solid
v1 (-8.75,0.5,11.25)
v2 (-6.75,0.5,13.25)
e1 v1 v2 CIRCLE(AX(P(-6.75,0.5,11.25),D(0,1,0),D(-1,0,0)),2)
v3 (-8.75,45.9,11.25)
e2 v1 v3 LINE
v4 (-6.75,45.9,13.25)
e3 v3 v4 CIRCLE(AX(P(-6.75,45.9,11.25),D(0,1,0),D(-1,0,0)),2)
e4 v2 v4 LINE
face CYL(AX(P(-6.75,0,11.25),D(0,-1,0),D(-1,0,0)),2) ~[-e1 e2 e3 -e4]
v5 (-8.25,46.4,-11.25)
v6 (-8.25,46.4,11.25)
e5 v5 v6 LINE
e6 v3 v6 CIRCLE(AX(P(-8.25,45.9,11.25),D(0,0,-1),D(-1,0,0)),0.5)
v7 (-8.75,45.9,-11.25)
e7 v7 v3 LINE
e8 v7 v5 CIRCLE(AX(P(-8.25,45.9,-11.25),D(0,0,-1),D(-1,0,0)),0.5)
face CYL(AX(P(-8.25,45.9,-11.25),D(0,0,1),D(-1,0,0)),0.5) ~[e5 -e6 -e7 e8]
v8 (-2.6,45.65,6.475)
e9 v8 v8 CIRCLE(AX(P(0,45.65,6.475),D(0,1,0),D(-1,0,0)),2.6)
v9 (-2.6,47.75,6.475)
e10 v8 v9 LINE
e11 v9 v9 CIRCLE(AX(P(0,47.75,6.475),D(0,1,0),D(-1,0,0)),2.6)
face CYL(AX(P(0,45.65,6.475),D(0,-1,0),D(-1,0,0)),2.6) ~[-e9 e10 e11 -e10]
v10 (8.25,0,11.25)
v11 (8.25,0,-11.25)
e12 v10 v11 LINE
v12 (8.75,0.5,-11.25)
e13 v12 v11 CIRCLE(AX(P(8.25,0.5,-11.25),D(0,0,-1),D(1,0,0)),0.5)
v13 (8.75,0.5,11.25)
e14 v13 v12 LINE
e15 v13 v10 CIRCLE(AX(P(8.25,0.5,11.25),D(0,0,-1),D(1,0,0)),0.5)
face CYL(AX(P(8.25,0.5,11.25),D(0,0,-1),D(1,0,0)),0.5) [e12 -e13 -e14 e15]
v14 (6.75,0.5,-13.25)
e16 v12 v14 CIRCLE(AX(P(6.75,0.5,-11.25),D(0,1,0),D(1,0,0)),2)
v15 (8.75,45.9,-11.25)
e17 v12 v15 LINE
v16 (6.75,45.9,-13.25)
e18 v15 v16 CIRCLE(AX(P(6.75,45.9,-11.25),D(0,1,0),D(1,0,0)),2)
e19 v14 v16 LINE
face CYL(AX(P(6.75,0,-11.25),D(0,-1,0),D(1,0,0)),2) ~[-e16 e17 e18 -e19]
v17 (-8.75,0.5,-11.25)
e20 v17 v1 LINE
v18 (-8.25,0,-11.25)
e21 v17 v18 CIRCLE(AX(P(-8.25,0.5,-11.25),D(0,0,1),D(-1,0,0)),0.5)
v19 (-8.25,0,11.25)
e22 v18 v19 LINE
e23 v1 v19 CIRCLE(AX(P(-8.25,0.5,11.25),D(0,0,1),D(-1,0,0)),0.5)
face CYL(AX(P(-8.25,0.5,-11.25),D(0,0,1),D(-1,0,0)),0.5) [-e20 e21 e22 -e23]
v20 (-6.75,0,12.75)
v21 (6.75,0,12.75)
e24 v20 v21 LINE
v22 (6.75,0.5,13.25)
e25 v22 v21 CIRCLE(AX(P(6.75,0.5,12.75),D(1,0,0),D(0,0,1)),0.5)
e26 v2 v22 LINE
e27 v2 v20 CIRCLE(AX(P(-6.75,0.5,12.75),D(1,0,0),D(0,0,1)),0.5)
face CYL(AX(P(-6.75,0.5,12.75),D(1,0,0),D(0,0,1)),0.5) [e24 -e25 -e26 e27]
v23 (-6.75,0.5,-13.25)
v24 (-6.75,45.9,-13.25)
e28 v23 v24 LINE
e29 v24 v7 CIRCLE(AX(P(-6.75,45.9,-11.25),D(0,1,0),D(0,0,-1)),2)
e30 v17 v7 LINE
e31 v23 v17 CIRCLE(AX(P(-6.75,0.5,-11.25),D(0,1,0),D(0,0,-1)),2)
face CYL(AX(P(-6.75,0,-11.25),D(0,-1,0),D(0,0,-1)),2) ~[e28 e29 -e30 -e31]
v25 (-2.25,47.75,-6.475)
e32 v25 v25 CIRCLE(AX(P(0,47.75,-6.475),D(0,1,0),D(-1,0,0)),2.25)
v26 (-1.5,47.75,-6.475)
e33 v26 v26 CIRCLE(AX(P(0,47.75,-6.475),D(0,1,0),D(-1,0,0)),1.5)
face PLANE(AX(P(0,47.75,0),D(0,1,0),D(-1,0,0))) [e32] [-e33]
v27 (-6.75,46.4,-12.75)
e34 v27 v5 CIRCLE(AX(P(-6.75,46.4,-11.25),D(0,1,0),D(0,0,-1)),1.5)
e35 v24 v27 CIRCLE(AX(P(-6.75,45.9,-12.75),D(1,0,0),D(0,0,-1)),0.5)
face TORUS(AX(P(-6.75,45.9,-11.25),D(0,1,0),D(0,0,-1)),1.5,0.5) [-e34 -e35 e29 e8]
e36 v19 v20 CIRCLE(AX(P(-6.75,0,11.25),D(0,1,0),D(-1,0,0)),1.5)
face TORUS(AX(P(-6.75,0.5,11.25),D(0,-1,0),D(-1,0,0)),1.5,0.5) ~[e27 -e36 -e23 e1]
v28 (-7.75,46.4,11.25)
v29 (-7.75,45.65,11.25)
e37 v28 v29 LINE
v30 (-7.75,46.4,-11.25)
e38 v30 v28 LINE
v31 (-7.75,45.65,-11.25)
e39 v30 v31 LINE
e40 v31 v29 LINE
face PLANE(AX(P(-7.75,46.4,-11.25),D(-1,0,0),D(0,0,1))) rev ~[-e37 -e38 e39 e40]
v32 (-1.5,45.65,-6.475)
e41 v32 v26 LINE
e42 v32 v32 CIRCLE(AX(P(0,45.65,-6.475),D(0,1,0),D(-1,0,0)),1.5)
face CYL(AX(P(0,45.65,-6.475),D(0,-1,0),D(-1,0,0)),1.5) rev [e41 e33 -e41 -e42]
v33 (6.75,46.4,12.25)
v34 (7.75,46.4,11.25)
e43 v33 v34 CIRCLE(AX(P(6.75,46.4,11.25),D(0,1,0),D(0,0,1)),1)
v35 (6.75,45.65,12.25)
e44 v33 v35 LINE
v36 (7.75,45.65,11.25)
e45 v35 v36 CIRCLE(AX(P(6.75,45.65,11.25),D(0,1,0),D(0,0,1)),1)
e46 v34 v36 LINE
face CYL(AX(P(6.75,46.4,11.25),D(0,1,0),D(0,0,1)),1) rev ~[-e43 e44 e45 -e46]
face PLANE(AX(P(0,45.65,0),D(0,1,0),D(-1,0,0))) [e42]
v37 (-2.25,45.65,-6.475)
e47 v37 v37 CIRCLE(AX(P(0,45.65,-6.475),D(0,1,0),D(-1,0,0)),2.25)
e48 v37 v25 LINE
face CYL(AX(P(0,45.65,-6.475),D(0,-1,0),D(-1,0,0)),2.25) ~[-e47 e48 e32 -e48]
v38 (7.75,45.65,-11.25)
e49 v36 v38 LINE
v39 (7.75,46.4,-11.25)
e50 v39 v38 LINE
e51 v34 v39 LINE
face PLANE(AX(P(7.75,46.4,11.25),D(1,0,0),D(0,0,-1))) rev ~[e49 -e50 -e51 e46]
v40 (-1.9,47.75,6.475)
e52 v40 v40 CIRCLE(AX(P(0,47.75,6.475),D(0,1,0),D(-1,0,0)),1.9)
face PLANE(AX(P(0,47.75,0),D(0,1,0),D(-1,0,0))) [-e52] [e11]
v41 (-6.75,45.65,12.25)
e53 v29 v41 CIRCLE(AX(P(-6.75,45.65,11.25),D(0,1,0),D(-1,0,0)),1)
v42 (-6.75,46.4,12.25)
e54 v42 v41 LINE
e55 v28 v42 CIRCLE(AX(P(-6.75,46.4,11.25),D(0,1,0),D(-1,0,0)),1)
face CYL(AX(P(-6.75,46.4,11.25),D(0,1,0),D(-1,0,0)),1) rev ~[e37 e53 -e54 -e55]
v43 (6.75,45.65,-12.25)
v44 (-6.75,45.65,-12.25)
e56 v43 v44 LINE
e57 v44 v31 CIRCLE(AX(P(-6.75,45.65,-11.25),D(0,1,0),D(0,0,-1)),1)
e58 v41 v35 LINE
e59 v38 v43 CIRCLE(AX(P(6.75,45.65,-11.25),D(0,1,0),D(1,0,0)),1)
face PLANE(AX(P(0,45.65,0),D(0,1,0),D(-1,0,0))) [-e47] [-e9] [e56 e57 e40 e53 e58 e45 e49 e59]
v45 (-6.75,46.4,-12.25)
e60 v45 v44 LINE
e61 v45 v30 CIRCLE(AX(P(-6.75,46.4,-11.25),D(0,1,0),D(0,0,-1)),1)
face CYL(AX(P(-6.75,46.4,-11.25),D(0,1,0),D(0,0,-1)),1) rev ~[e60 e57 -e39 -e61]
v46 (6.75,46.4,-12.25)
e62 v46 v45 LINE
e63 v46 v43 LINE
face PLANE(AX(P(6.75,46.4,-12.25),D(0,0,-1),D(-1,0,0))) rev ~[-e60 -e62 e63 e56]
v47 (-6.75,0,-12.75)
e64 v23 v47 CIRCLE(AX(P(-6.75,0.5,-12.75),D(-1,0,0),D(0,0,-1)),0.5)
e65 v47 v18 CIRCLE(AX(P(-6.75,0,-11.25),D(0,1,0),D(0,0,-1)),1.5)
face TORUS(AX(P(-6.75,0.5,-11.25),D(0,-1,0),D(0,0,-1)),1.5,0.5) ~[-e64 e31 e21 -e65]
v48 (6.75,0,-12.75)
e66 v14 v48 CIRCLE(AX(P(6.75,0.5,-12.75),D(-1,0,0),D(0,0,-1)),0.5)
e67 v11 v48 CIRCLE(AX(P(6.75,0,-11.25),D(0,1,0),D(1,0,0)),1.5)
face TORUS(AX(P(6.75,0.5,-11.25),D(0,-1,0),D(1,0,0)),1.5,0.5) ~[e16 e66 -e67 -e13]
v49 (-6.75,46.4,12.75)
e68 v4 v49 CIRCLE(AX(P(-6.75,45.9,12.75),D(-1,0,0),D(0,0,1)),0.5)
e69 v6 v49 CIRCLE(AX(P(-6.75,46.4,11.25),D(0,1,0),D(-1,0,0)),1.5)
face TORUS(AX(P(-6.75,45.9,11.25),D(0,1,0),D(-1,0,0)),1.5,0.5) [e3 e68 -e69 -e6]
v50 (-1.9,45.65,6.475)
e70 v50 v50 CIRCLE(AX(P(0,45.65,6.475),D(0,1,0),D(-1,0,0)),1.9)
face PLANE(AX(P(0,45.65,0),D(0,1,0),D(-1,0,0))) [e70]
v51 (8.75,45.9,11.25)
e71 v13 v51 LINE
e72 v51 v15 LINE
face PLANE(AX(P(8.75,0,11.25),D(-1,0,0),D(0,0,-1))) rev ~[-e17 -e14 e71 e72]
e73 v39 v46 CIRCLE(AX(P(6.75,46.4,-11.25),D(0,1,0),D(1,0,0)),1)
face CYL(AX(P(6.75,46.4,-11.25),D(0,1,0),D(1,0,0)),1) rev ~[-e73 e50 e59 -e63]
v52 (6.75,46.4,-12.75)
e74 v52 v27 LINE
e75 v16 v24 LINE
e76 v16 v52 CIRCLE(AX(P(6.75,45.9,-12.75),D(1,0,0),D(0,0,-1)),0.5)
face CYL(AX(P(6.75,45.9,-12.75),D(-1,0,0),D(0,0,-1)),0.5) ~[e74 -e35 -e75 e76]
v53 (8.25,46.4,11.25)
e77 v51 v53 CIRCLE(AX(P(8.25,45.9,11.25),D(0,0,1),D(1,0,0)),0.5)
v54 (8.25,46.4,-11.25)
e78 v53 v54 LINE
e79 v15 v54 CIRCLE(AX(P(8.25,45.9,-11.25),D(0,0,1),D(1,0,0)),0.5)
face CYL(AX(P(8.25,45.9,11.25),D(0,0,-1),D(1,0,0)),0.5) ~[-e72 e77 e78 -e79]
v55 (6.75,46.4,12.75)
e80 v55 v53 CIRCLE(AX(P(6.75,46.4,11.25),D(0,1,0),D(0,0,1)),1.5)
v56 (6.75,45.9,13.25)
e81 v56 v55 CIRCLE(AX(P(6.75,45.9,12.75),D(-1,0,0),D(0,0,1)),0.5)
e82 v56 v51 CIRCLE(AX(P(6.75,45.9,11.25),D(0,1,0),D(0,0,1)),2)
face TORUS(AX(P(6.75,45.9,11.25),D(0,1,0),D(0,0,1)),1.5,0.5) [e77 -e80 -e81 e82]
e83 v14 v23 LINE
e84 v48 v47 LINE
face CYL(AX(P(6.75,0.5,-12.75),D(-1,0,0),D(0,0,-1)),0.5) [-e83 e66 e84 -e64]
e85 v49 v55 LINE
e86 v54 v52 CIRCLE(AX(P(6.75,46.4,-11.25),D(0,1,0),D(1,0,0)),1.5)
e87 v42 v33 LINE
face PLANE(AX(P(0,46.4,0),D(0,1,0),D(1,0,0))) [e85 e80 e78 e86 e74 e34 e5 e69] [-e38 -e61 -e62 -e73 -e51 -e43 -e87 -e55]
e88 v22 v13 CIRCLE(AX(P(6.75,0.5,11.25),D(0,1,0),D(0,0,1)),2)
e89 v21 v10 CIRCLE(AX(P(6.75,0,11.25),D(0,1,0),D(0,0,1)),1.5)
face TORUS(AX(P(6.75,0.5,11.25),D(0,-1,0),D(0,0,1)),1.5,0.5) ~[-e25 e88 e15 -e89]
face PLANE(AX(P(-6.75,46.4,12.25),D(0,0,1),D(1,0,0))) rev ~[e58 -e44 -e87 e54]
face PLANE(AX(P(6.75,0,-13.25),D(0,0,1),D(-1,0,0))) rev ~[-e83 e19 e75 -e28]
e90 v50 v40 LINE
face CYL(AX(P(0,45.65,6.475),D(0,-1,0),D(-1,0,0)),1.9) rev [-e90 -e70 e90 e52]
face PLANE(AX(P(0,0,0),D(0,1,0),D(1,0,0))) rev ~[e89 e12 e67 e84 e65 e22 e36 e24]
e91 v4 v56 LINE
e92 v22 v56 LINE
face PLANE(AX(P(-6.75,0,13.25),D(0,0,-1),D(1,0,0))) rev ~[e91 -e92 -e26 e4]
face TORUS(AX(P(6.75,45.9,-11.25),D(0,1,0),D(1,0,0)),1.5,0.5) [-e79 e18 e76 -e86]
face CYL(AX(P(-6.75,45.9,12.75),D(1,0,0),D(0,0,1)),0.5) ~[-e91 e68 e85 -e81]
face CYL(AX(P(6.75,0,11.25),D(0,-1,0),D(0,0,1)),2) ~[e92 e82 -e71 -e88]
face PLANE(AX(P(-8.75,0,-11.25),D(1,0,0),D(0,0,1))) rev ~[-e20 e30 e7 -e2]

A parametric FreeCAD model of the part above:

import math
import FreeCAD as App
import Part
import Sketcher


def edges_at(feature, points):
    """Names of the edges that pass closest to the given points."""
    edges = feature.Shape.Edges
    near = lambda p: min(range(len(edges)), key=lambda i: edges[i].distToShape(Part.Vertex(*p))[0])
    return sorted({f"Edge{near(p) + 1}" for p in points})

doc = App.newDocument("Part")
body = doc.addObject("PartDesign::Body", "Body")

# Sketch on XZ plane
sketch1 = doc.addObject("Sketcher::SketchObject", "Sketch")
body.addObject(sketch1)
sketch1.AttachmentSupport = (doc.XZ_Plane, [""])
sketch1.MapMode = "FlatFace"
sketch1.addGeometry(Part.ArcOfCircle(Part.Circle(App.Vector(6.8, -11.2, 0), App.Vector(0, 0, 1), 2), math.radians(-90), math.radians(0)), False)
sketch1.addGeometry(Part.LineSegment(App.Vector(6.8, -13.2, 0), App.Vector(-6.8, -13.2, 0)), False)
sketch1.addGeometry(Part.ArcOfCircle(Part.Circle(App.Vector(-6.8, -11.2, 0), App.Vector(0, 0, 1), 2), math.radians(180), math.radians(270)), False)
sketch1.addGeometry(Part.LineSegment(App.Vector(-8.8, -11.2, 0), App.Vector(-8.8, 11.2, 0)), False)
sketch1.addGeometry(Part.ArcOfCircle(Part.Circle(App.Vector(-6.8, 11.2, 0), App.Vector(0, 0, 1), 2), math.radians(90), math.radians(180)), False)
sketch1.addGeometry(Part.LineSegment(App.Vector(-6.8, 13.2, 0), App.Vector(6.8, 13.2, 0)), False)
sketch1.addGeometry(Part.ArcOfCircle(Part.Circle(App.Vector(6.8, 11.2, 0), App.Vector(0, 0, 1), 2), math.radians(0), math.radians(90)), False)
sketch1.addGeometry(Part.LineSegment(App.Vector(8.8, 11.2, 0), App.Vector(8.8, -11.2, 0)), False)
sketch1.addConstraint(Sketcher.Constraint("Tangent", 0, 1, 1, 1))
sketch1.addConstraint(Sketcher.Constraint("Tangent", 1, 2, 2, 2))
sketch1.addConstraint(Sketcher.Constraint("Tangent", 2, 1, 3, 1))
sketch1.addConstraint(Sketcher.Constraint("Tangent", 3, 2, 4, 2))
sketch1.addConstraint(Sketcher.Constraint("Tangent", 4, 1, 5, 1))
sketch1.addConstraint(Sketcher.Constraint("Tangent", 5, 2, 6, 2))
sketch1.addConstraint(Sketcher.Constraint("Tangent", 6, 1, 7, 1))
sketch1.addConstraint(Sketcher.Constraint("Tangent", 7, 2, 0, 2))
sketch1.addConstraint(Sketcher.Constraint("Horizontal", 1))
sketch1.addConstraint(Sketcher.Constraint("Vertical", 3))
sketch1.addConstraint(Sketcher.Constraint("Horizontal", 5))
sketch1.addConstraint(Sketcher.Constraint("Vertical", 7))
sketch1.addConstraint(Sketcher.Constraint("Equal", 0, 2))
sketch1.addConstraint(Sketcher.Constraint("Equal", 2, 4))
sketch1.addConstraint(Sketcher.Constraint("Equal", 4, 6))
sketch1.addConstraint(Sketcher.Constraint("Symmetric", 0, 3, 4, 3, -1, 1))
sketch1.addConstraint(Sketcher.Constraint("Radius", 0, 2.0))
sketch1.addConstraint(Sketcher.Constraint("DistanceX", 3, 2, 6, 1, 17.5))
sketch1.addConstraint(Sketcher.Constraint("DistanceY", 3, 1, 3, 2, 22.5))
pad1 = doc.addObject("PartDesign::Pad", "Pad")
body.addObject(pad1)
pad1.Profile = sketch1
pad1.Length = 46.4
pad1.Reversed = True

# Sketch on XZ plane
sketch2 = doc.addObject("Sketcher::SketchObject", "Sketch001")
body.addObject(sketch2)
sketch2.AttachmentSupport = (doc.XZ_Plane, [""])
sketch2.MapMode = "FlatFace"
sketch2.AttachmentOffset = App.Placement(App.Vector(0, 0, -46.4), App.Rotation())
sketch2.addGeometry(Part.ArcOfCircle(Part.Circle(App.Vector(-6.8, -11.2, 0), App.Vector(0, 0, 1), 1), math.radians(180), math.radians(270)), False)
sketch2.addGeometry(Part.LineSegment(App.Vector(-7.8, -11.2, 0), App.Vector(-7.8, 11.2, 0)), False)
sketch2.addGeometry(Part.ArcOfCircle(Part.Circle(App.Vector(-6.8, 11.2, 0), App.Vector(0, 0, 1), 1), math.radians(90), math.radians(180)), False)
sketch2.addGeometry(Part.LineSegment(App.Vector(-6.8, 12.2, 0), App.Vector(6.8, 12.2, 0)), False)
sketch2.addGeometry(Part.ArcOfCircle(Part.Circle(App.Vector(6.8, 11.2, 0), App.Vector(0, 0, 1), 1), math.radians(0), math.radians(90)), False)
sketch2.addGeometry(Part.LineSegment(App.Vector(7.8, 11.2, 0), App.Vector(7.8, -11.2, 0)), False)
sketch2.addGeometry(Part.ArcOfCircle(Part.Circle(App.Vector(6.8, -11.2, 0), App.Vector(0, 0, 1), 1), math.radians(-90), math.radians(0)), False)
sketch2.addGeometry(Part.LineSegment(App.Vector(6.8, -12.2, 0), App.Vector(-6.8, -12.2, 0)), False)
sketch2.addConstraint(Sketcher.Constraint("Tangent", 0, 1, 1, 1))
sketch2.addConstraint(Sketcher.Constraint("Tangent", 1, 2, 2, 2))
sketch2.addConstraint(Sketcher.Constraint("Tangent", 2, 1, 3, 1))
sketch2.addConstraint(Sketcher.Constraint("Tangent", 3, 2, 4, 2))
sketch2.addConstraint(Sketcher.Constraint("Tangent", 4, 1, 5, 1))
sketch2.addConstraint(Sketcher.Constraint("Tangent", 5, 2, 6, 2))
sketch2.addConstraint(Sketcher.Constraint("Tangent", 6, 1, 7, 1))
sketch2.addConstraint(Sketcher.Constraint("Tangent", 7, 2, 0, 2))
sketch2.addConstraint(Sketcher.Constraint("Vertical", 1))
sketch2.addConstraint(Sketcher.Constraint("Horizontal", 3))
sketch2.addConstraint(Sketcher.Constraint("Vertical", 5))
sketch2.addConstraint(Sketcher.Constraint("Horizontal", 7))
sketch2.addConstraint(Sketcher.Constraint("Equal", 0, 2))
sketch2.addConstraint(Sketcher.Constraint("Equal", 2, 4))
sketch2.addConstraint(Sketcher.Constraint("Equal", 4, 6))
sketch2.addConstraint(Sketcher.Constraint("Symmetric", 0, 3, 4, 3, -1, 1))
sketch2.addConstraint(Sketcher.Constraint("Radius", 0, 1.0))
sketch2.addConstraint(Sketcher.Constraint("DistanceX", 3, 1, 3, 2, 13.5))
sketch2.addConstraint(Sketcher.Constraint("DistanceY", 1, 1, 1, 2, 22.5))
pocket1 = doc.addObject("PartDesign::Pocket", "Pocket")
body.addObject(pocket1)
pocket1.Profile = sketch2
pocket1.Length = 0.75
pocket1.Reversed = True
doc.recompute()

fillet = doc.addObject("PartDesign::Fillet", "Fillet")
body.addObject(fillet)
fillet.Base = (pocket1, edges_at(pocket1, [
    (0, 46.4, -13.25),
    (-8.164, 46.4, -12.664),
    (-8.75, 46.4, 0),
    (-8.164, 46.4, 12.664),
    (0, 46.4, 13.25),
    (8.164, 46.4, 12.664),
    (8.75, 46.4, 0),
    (8.164, 46.4, -12.664),
    (0, 0, -13.25),
    (-8.164, 0, -12.664),
    (-8.75, 0, 0),
    (-8.164, 0, 12.664),
    (0, 0, 13.25),
    (8.164, 0, 12.664),
    (8.75, 0, 0),
    (8.164, 0, -12.664),
]))
fillet.Radius = 0.5

# Sketch on XZ plane
sketch3 = doc.addObject("Sketcher::SketchObject", "Sketch002")
body.addObject(sketch3)
sketch3.AttachmentSupport = (doc.XZ_Plane, [""])
sketch3.MapMode = "FlatFace"
sketch3.AttachmentOffset = App.Placement(App.Vector(0, 0, -45.65), App.Rotation())
sketch3.addGeometry(Part.Circle(App.Vector(0, -6.5, 0), App.Vector(0, 0, 1), 2.2), False)
sketch3.addGeometry(Part.Circle(App.Vector(0, -6.5, 0), App.Vector(0, 0, 1), 1.5), False)
sketch3.addGeometry(Part.Circle(App.Vector(0, 6.5, 0), App.Vector(0, 0, 1), 2.6), False)
sketch3.addGeometry(Part.Circle(App.Vector(0, 6.5, 0), App.Vector(0, 0, 1), 1.9), False)
sketch3.addConstraint(Sketcher.Constraint("Coincident", 1, 3, 0, 3))
sketch3.addConstraint(Sketcher.Constraint("Coincident", 3, 3, 2, 3))
sketch3.addConstraint(Sketcher.Constraint("Symmetric", 0, 3, 2, 3, -1, 1))
sketch3.addConstraint(Sketcher.Constraint("PointOnObject", 0, 3, -2))
sketch3.addConstraint(Sketcher.Constraint("Diameter", 0, 4.5))
sketch3.addConstraint(Sketcher.Constraint("Diameter", 2, 5.2))
sketch3.addConstraint(Sketcher.Constraint("Diameter", 1, 3.0))
sketch3.addConstraint(Sketcher.Constraint("Diameter", 3, 3.8))
sketch3.addConstraint(Sketcher.Constraint("DistanceY", 0, 3, -1, 1, 6.475))
pad2 = doc.addObject("PartDesign::Pad", "Pad001")
body.addObject(pad2)
pad2.Profile = sketch3
pad2.Length = 2.1
pad2.Reversed = True

doc.recompute()
